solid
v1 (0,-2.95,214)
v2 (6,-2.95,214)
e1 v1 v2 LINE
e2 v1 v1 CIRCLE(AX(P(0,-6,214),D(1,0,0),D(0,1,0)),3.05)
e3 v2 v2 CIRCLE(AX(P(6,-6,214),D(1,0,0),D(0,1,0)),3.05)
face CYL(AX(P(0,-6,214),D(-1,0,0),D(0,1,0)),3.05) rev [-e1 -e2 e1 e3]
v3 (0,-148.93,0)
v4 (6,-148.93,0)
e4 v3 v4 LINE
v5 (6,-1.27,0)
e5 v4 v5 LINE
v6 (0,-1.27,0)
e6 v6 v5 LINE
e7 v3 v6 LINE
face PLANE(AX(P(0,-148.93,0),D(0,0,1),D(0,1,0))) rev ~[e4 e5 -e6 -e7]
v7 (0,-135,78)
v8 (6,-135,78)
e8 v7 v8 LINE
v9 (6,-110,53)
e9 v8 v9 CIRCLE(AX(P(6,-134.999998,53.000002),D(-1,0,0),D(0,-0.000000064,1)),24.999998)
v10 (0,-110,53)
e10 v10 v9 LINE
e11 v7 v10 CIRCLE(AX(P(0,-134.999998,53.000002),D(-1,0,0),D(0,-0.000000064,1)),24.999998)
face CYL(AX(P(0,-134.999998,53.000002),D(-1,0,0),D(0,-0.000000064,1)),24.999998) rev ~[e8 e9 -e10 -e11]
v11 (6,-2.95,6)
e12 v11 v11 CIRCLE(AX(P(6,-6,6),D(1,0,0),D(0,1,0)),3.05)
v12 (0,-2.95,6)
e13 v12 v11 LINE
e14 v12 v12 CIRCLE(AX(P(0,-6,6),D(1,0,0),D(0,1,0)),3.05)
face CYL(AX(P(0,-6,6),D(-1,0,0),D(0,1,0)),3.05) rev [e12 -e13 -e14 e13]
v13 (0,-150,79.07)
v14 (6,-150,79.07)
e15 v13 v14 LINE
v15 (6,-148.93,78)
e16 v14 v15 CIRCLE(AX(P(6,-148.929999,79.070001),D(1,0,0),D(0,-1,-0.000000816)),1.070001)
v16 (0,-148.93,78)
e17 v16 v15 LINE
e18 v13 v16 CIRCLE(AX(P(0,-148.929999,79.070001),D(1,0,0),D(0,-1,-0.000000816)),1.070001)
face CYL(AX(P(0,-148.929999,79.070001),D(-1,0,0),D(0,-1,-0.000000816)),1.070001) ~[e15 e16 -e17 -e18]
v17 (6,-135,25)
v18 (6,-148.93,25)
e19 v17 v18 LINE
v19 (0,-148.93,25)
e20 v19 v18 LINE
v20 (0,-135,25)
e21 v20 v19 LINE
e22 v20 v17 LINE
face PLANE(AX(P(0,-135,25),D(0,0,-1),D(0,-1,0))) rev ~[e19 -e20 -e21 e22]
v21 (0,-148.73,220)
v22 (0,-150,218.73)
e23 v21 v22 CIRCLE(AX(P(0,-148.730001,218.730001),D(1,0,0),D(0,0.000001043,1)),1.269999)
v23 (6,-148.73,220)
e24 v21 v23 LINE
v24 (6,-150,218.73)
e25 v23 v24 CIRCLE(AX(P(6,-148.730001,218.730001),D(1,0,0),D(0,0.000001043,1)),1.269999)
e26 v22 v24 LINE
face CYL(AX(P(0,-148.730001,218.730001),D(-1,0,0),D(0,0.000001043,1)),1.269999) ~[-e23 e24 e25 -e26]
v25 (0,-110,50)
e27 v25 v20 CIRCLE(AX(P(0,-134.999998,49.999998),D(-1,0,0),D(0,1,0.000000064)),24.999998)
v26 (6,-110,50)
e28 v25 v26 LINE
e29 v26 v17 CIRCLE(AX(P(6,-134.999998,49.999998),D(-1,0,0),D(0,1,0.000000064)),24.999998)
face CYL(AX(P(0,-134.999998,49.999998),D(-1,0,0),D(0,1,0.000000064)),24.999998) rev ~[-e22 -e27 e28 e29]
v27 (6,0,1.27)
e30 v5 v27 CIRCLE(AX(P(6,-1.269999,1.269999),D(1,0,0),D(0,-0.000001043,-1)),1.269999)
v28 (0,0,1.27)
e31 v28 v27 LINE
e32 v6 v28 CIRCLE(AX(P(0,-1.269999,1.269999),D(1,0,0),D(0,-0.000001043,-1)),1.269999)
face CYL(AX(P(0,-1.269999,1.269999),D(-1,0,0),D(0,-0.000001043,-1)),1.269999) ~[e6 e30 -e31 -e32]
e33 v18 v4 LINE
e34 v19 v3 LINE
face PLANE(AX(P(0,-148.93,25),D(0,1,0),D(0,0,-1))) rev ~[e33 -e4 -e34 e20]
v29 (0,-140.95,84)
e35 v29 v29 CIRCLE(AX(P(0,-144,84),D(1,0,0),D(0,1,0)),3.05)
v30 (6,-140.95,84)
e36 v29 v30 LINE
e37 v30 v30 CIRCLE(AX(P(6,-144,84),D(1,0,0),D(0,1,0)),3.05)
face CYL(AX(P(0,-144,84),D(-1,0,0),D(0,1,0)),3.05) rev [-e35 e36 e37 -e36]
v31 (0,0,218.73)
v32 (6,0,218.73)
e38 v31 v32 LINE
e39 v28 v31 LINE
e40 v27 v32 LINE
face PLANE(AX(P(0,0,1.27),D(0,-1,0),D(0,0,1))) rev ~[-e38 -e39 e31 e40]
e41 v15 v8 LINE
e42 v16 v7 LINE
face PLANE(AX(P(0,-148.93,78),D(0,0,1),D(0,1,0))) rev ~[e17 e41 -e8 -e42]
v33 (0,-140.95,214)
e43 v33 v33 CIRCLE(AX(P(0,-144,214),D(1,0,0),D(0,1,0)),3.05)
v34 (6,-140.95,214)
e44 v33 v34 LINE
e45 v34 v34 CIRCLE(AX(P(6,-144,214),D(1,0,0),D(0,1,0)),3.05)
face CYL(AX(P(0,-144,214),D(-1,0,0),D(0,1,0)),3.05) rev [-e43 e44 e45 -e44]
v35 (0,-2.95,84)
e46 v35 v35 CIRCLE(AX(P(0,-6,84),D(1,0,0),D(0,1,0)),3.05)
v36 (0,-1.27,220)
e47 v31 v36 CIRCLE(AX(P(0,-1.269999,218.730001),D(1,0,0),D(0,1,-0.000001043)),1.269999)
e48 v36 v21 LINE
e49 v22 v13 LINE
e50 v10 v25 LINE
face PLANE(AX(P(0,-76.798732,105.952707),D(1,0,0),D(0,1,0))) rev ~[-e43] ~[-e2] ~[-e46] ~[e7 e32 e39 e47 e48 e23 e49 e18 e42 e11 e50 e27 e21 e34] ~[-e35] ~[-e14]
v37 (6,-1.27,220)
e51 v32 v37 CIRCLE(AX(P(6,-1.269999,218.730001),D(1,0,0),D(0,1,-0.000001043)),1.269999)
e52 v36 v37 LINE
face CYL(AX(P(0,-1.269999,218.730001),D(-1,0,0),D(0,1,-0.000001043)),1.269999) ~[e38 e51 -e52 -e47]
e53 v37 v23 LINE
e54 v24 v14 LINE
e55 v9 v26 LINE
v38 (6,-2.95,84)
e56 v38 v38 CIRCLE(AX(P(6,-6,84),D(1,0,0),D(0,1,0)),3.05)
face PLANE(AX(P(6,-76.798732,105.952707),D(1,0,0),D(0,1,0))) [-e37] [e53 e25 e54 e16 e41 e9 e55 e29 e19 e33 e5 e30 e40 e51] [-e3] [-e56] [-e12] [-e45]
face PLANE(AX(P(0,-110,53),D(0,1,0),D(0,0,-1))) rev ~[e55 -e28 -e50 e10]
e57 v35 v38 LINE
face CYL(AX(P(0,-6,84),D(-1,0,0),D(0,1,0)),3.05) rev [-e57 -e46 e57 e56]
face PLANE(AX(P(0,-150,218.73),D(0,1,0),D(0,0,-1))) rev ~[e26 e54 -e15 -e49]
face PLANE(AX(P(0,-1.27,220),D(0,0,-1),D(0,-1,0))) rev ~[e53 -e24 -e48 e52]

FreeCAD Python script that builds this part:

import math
import FreeCAD as App
import Part
import Sketcher

V = App.Vector
Q = App.Units.Quantity

doc = App.newDocument("Part")
body = doc.addObject("PartDesign::Body", "Body")

# Sketch on YZ plane
sketch1 = body.newObject("Sketcher::SketchObject", "Sketch")
sketch1.AttachmentSupport = (doc.getObject("YZ_Plane"), [""])
sketch1.MapMode = "FlatFace"
sketch1.addGeometry(Part.ArcOfCircle(Part.Circle(V(-1.3, 1.3, 0), V(0, 0, 1), 1.3), math.radians(-90), math.radians(0)), False)
sketch1.addGeometry(Part.LineSegment(V(0, 1.3, 0), V(0, 218.7, 0)), False)
sketch1.addGeometry(Part.ArcOfCircle(Part.Circle(V(-1.3, 218.7, 0), V(0, 0, 1), 1.3), math.radians(0), math.radians(90)), False)
sketch1.addGeometry(Part.LineSegment(V(-1.3, 220, 0), V(-148.7, 220, 0)), False)
sketch1.addGeometry(Part.ArcOfCircle(Part.Circle(V(-148.7, 218.7, 0), V(0, 0, 1), 1.3), math.radians(90), math.radians(180)), False)
sketch1.addGeometry(Part.LineSegment(V(-150, 218.7, 0), V(-150, 79.1, 0)), False)
sketch1.addGeometry(Part.ArcOfCircle(Part.Circle(V(-148.9, 79.1, 0), V(0, 0, 1), 1.1), math.radians(-180), math.radians(-90)), False)
sketch1.addGeometry(Part.LineSegment(V(-148.9, 78, 0), V(-135, 78, 0)), False)
sketch1.addGeometry(Part.ArcOfCircle(Part.Circle(V(-135, 53, 0), V(0, 0, 1), 25), math.radians(0), math.radians(90)), False)
sketch1.addGeometry(Part.LineSegment(V(-110, 53, 0), V(-110, 50, 0)), False)
sketch1.addGeometry(Part.ArcOfCircle(Part.Circle(V(-135, 50, 0), V(0, 0, 1), 25), math.radians(-90), math.radians(0)), False)
sketch1.addGeometry(Part.LineSegment(V(-135, 25, 0), V(-148.9, 25, 0)), False)
sketch1.addGeometry(Part.LineSegment(V(-148.9, 25, 0), V(-148.9, 0, 0)), False)
sketch1.addGeometry(Part.LineSegment(V(-148.9, 0, 0), V(-1.3, 0, 0)), False)
sketch1.addGeometry(Part.Circle(V(-144, 84, 0), V(0, 0, 1), 3), False)
sketch1.addGeometry(Part.Circle(V(-6, 6, 0), V(0, 0, 1), 3), False)
sketch1.addGeometry(Part.Circle(V(-6, 84, 0), V(0, 0, 1), 3), False)
sketch1.addGeometry(Part.Circle(V(-144, 214, 0), V(0, 0, 1), 3), False)
sketch1.addGeometry(Part.Circle(V(-6, 214, 0), V(0, 0, 1), 3), False)
sketch1.addConstraint(Sketcher.Constraint("Tangent", 0, 2, 1, 1))
sketch1.addConstraint(Sketcher.Constraint("Tangent", 1, 2, 2, 1))
sketch1.addConstraint(Sketcher.Constraint("Tangent", 2, 2, 3, 1))
sketch1.addConstraint(Sketcher.Constraint("Tangent", 3, 2, 4, 1))
sketch1.addConstraint(Sketcher.Constraint("Tangent", 4, 2, 5, 1))
sketch1.addConstraint(Sketcher.Constraint("Tangent", 5, 2, 6, 1))
sketch1.addConstraint(Sketcher.Constraint("Tangent", 6, 2, 7, 1))
sketch1.addConstraint(Sketcher.Constraint("Tangent", 7, 2, 8, 2))
sketch1.addConstraint(Sketcher.Constraint("Tangent", 8, 1, 9, 1))
sketch1.addConstraint(Sketcher.Constraint("Tangent", 9, 2, 10, 2))
sketch1.addConstraint(Sketcher.Constraint("Tangent", 10, 1, 11, 1))
sketch1.addConstraint(Sketcher.Constraint("Coincident", 11, 2, 12, 1))
sketch1.addConstraint(Sketcher.Constraint("Coincident", 12, 2, 13, 1))
sketch1.addConstraint(Sketcher.Constraint("Tangent", 13, 2, 0, 1))
sketch1.addConstraint(Sketcher.Constraint("Vertical", 1))
sketch1.addConstraint(Sketcher.Constraint("Horizontal", 3))
sketch1.addConstraint(Sketcher.Constraint("Vertical", 5))
sketch1.addConstraint(Sketcher.Constraint("Horizontal", 7))
sketch1.addConstraint(Sketcher.Constraint("Vertical", 9))
sketch1.addConstraint(Sketcher.Constraint("Horizontal", 11))
sketch1.addConstraint(Sketcher.Constraint("Vertical", 12))
sketch1.addConstraint(Sketcher.Constraint("Horizontal", 13))
sketch1.addConstraint(Sketcher.Constraint("Equal", 0, 2))
sketch1.addConstraint(Sketcher.Constraint("Equal", 2, 4))
sketch1.addConstraint(Sketcher.Constraint("Equal", 8, 10))
sketch1.addConstraint(Sketcher.Constraint("Equal", 14, 15))
sketch1.addConstraint(Sketcher.Constraint("Equal", 15, 16))
sketch1.addConstraint(Sketcher.Constraint("Equal", 16, 17))
sketch1.addConstraint(Sketcher.Constraint("Equal", 17, 18))
sketch1.addConstraint(Sketcher.Constraint("PointOnObject", 0, 2, -2))
sketch1.addConstraint(Sketcher.Constraint("PointOnObject", 12, 2, -1))
sketch1.addConstraint(Sketcher.Constraint("Horizontal", 14, 3, 16, 3))
sketch1.addConstraint(Sketcher.Constraint("Horizontal", 17, 3, 18, 3))
sketch1.addConstraint(Sketcher.Constraint("Vertical", 15, 3, 16, 3))
sketch1.addConstraint(Sketcher.Constraint("Vertical", 14, 3, 17, 3))
sketch1.addConstraint(Sketcher.Constraint("Vertical", 16, 3, 18, 3))
sketch1.addConstraint(Sketcher.Constraint("Vertical", 6, 2, 11, 2))
sketch1.addConstraint(Sketcher.Constraint("Radius", 8, Q("24.999998 mm")))
sketch1.addConstraint(Sketcher.Constraint("Diameter", 14, Q("6.1 mm")))
sketch1.addConstraint(Sketcher.Constraint("DistanceY", 9, 2, 9, 1, Q("3 mm")))
sketch1.addConstraint(Sketcher.Constraint("DistanceY", 12, 2, 12, 1, Q("25 mm")))
sketch1.addConstraint(Sketcher.Constraint("Radius", 0, Q("1.269999 mm")))
sketch1.addConstraint(Sketcher.Constraint("Radius", 6, Q("1.070001 mm")))
sketch1.addConstraint(Sketcher.Constraint("DistanceX", 8, 3, -1, 1, Q("134.999998 mm")))
sketch1.addConstraint(Sketcher.Constraint("DistanceX", 14, 3, -1, 1, Q("144 mm")))
sketch1.addConstraint(Sketcher.Constraint("DistanceY", -1, 1, 14, 3, Q("84 mm")))
sketch1.addConstraint(Sketcher.Constraint("DistanceX", 15, 3, -1, 1, Q("6 mm")))
sketch1.addConstraint(Sketcher.Constraint("DistanceY", -1, 1, 15, 3, Q("6 mm")))
sketch1.addConstraint(Sketcher.Constraint("DistanceY", -1, 1, 17, 3, Q("214 mm")))
sketch1.addConstraint(Sketcher.Constraint("DistanceY", -1, 1, 2, 2, Q("220 mm")))
sketch1.addConstraint(Sketcher.Constraint("DistanceX", 4, 2, -1, 1, Q("150 mm")))
pad1 = body.newObject("PartDesign::Pad", "Pad")
pad1.Profile = sketch1
pad1.Length = 6

doc.recompute()
